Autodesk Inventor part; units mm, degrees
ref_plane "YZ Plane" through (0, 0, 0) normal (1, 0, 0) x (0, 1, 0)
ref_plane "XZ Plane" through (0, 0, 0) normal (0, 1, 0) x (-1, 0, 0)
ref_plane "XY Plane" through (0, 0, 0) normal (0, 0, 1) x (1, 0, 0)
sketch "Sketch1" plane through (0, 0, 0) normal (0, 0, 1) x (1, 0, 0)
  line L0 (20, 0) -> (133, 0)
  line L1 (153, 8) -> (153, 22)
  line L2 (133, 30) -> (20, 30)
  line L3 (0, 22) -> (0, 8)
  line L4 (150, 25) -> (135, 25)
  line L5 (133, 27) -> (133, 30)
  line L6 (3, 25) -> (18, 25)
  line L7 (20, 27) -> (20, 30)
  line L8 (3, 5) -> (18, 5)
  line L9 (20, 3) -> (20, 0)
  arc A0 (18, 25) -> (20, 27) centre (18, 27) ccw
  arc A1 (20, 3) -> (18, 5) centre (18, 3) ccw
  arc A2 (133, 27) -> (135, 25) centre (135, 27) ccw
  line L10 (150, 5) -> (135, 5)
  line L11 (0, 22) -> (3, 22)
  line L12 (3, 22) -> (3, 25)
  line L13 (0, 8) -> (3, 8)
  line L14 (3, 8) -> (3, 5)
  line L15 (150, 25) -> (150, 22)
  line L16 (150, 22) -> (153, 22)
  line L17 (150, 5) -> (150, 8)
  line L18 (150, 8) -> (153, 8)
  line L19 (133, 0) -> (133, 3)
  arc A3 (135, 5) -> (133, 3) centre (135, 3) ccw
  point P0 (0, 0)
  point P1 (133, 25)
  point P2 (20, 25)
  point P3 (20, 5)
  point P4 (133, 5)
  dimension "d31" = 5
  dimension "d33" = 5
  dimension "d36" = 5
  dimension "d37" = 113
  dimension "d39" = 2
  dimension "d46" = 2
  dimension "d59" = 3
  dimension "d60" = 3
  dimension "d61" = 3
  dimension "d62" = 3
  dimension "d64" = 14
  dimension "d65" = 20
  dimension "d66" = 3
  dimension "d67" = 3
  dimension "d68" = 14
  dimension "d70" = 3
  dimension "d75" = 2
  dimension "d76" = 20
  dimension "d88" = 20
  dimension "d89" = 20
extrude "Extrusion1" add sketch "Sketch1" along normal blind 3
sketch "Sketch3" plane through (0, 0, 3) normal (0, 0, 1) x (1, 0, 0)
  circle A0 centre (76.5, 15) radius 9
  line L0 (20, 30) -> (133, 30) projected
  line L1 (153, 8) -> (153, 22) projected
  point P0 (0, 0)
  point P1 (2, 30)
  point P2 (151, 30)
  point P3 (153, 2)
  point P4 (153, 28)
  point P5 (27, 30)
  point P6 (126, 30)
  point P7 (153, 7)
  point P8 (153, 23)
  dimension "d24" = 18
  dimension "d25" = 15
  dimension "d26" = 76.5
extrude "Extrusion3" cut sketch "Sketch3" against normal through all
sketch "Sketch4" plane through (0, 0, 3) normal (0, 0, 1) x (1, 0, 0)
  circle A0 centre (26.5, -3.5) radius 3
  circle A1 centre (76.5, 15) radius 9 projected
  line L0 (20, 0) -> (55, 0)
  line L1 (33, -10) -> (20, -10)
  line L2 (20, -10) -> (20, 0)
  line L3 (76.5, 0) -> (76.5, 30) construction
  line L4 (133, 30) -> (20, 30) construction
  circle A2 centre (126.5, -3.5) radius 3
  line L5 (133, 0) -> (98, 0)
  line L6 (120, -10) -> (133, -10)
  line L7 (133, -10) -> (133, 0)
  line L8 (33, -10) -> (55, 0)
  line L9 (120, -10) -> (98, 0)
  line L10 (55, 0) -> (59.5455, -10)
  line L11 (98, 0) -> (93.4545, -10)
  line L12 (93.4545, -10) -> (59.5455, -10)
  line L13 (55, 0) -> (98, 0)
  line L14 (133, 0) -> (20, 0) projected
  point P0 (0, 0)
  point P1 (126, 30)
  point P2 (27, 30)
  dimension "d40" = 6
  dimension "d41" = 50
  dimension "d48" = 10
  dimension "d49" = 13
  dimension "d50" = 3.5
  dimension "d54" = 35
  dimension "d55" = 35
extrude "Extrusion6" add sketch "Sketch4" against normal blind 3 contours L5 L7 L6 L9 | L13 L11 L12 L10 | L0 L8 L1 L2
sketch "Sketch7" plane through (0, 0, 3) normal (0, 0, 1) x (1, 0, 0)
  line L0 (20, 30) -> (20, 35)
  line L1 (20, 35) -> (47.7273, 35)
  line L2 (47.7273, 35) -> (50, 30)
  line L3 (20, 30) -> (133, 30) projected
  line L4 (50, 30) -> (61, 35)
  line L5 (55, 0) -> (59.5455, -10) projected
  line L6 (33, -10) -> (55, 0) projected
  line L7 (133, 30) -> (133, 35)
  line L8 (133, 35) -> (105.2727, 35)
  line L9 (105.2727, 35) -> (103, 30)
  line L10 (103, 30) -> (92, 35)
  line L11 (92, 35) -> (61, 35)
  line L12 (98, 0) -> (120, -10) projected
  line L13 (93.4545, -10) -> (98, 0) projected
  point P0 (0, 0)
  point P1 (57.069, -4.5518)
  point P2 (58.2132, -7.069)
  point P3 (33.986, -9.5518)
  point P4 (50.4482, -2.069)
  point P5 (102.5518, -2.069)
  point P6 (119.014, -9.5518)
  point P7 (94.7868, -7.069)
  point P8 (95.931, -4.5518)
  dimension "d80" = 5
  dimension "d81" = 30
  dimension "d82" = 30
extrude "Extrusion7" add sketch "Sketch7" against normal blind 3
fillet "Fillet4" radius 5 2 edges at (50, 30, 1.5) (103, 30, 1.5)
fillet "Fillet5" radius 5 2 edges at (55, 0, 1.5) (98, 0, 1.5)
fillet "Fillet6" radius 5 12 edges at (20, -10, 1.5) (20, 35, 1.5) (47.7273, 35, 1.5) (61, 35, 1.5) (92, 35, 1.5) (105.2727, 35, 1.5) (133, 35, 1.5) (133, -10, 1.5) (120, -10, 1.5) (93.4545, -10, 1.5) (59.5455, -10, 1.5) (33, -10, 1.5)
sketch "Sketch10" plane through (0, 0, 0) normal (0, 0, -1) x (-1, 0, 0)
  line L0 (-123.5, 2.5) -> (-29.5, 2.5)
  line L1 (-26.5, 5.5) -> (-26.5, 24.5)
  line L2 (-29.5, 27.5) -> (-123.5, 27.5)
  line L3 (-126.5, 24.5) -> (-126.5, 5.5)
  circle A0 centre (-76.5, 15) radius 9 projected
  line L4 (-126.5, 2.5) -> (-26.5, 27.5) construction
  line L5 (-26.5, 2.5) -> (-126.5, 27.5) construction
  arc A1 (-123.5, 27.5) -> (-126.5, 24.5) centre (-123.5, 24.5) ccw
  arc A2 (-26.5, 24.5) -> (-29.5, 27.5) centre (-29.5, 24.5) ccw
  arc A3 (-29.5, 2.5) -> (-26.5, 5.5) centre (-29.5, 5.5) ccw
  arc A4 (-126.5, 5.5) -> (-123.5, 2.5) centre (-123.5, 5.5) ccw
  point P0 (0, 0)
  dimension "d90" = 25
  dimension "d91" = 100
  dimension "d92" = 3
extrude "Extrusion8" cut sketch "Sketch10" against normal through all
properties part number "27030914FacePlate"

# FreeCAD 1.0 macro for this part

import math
import FreeCAD as App
import Part
import Sketcher


def edges_at(feature, points):
    """Names of the edges that pass closest to the given points."""
    edges = feature.Shape.Edges
    near = lambda p: min(range(len(edges)), key=lambda i: edges[i].distToShape(Part.Vertex(*p))[0])
    return sorted({f"Edge{near(p) + 1}" for p in points})

doc = App.newDocument("Part")
body = doc.addObject("PartDesign::Body", "Body")

sketch1 = body.newObject("Sketcher::SketchObject", "Sketch")
sketch1.AttachmentSupport = (doc.getObject("XY_Plane"), [""])
sketch1.MapMode = "FlatFace"
sketch1.addGeometry([
    Part.LineSegment(App.Vector(20, 3, 0), App.Vector(20, 0, 0)),
    Part.LineSegment(App.Vector(20, 0, 0), App.Vector(133, 0, 0)),
    Part.LineSegment(App.Vector(133, 0, 0), App.Vector(133, 3, 0)),
    Part.ArcOfCircle(Part.Circle(App.Vector(135, 3, 0), App.Vector(0, 0, 1), 2), math.radians(90), math.radians(180)),
    Part.LineSegment(App.Vector(135, 5, 0), App.Vector(150, 5, 0)),
    Part.LineSegment(App.Vector(150, 5, 0), App.Vector(150, 8, 0)),
    Part.LineSegment(App.Vector(150, 8, 0), App.Vector(153, 8, 0)),
    Part.LineSegment(App.Vector(153, 8, 0), App.Vector(153, 22, 0)),
    Part.LineSegment(App.Vector(153, 22, 0), App.Vector(150, 22, 0)),
    Part.LineSegment(App.Vector(150, 22, 0), App.Vector(150, 25, 0)),
    Part.LineSegment(App.Vector(150, 25, 0), App.Vector(135, 25, 0)),
    Part.ArcOfCircle(Part.Circle(App.Vector(135, 27, 0), App.Vector(0, 0, 1), 2), math.radians(180), math.radians(270)),
    Part.LineSegment(App.Vector(133, 27, 0), App.Vector(133, 30, 0)),
    Part.LineSegment(App.Vector(133, 30, 0), App.Vector(20, 30, 0)),
    Part.LineSegment(App.Vector(20, 30, 0), App.Vector(20, 27, 0)),
    Part.ArcOfCircle(Part.Circle(App.Vector(18, 27, 0), App.Vector(0, 0, 1), 2), math.radians(-90), math.radians(0)),
    Part.LineSegment(App.Vector(18, 25, 0), App.Vector(3, 25, 0)),
    Part.LineSegment(App.Vector(3, 25, 0), App.Vector(3, 22, 0)),
    Part.LineSegment(App.Vector(3, 22, 0), App.Vector(0, 22, 0)),
    Part.LineSegment(App.Vector(0, 22, 0), App.Vector(0, 8, 0)),
    Part.LineSegment(App.Vector(0, 8, 0), App.Vector(3, 8, 0)),
    Part.LineSegment(App.Vector(3, 8, 0), App.Vector(3, 5, 0)),
    Part.LineSegment(App.Vector(3, 5, 0), App.Vector(18, 5, 0)),
    Part.ArcOfCircle(Part.Circle(App.Vector(18, 3, 0), App.Vector(0, 0, 1), 2), math.radians(0), math.radians(90)),
], False)
sketch1.addConstraint([
    Sketcher.Constraint("Coincident", 0, 2, 1, 1),
    Sketcher.Constraint("Coincident", 1, 2, 2, 1),
    Sketcher.Constraint("Tangent", 2, 2, 3, 2),
    Sketcher.Constraint("Tangent", 3, 1, 4, 1),
    Sketcher.Constraint("Coincident", 4, 2, 5, 1),
    Sketcher.Constraint("Coincident", 5, 2, 6, 1),
    Sketcher.Constraint("Coincident", 6, 2, 7, 1),
    Sketcher.Constraint("Coincident", 7, 2, 8, 1),
    Sketcher.Constraint("Coincident", 8, 2, 9, 1),
    Sketcher.Constraint("Coincident", 9, 2, 10, 1),
    Sketcher.Constraint("Tangent", 10, 2, 11, 2),
    Sketcher.Constraint("Tangent", 11, 1, 12, 1),
    Sketcher.Constraint("Coincident", 12, 2, 13, 1),
    Sketcher.Constraint("Coincident", 13, 2, 14, 1),
    Sketcher.Constraint("Tangent", 14, 2, 15, 2),
    Sketcher.Constraint("Tangent", 15, 1, 16, 1),
    Sketcher.Constraint("Coincident", 16, 2, 17, 1),
    Sketcher.Constraint("Coincident", 17, 2, 18, 1),
    Sketcher.Constraint("Coincident", 18, 2, 19, 1),
    Sketcher.Constraint("Coincident", 19, 2, 20, 1),
    Sketcher.Constraint("Coincident", 20, 2, 21, 1),
    Sketcher.Constraint("Coincident", 21, 2, 22, 1),
    Sketcher.Constraint("Tangent", 22, 2, 23, 2),
    Sketcher.Constraint("Tangent", 23, 1, 0, 1),
    Sketcher.Constraint("Vertical", 0),
    Sketcher.Constraint("Horizontal", 1),
    Sketcher.Constraint("Vertical", 2),
    Sketcher.Constraint("Horizontal", 4),
    Sketcher.Constraint("Vertical", 5),
    Sketcher.Constraint("Horizontal", 6),
    Sketcher.Constraint("Vertical", 7),
    Sketcher.Constraint("Horizontal", 8),
    Sketcher.Constraint("Vertical", 9),
    Sketcher.Constraint("Horizontal", 10),
    Sketcher.Constraint("Vertical", 12),
    Sketcher.Constraint("Horizontal", 13),
    Sketcher.Constraint("Vertical", 14),
    Sketcher.Constraint("Horizontal", 16),
    Sketcher.Constraint("Vertical", 17),
    Sketcher.Constraint("Horizontal", 18),
    Sketcher.Constraint("Vertical", 19),
    Sketcher.Constraint("Horizontal", 20),
    Sketcher.Constraint("Vertical", 21),
    Sketcher.Constraint("Horizontal", 22),
    Sketcher.Constraint("Equal", 3, 11),
    Sketcher.Constraint("Equal", 11, 15),
    Sketcher.Constraint("Equal", 15, 23),
    Sketcher.Constraint("PointOnObject", 0, 2, -1),
    Sketcher.Constraint("PointOnObject", 18, 2, -2),
    Sketcher.Constraint("Horizontal", 11, 3, 15, 3),
    Sketcher.Constraint("Horizontal", 3, 3, 23, 3),
    Sketcher.Constraint("Horizontal", 8, 2, 17, 2),
    Sketcher.Constraint("Horizontal", 6, 2, 19, 2),
    Sketcher.Constraint("Vertical", 3, 3, 11, 3),
    Sketcher.Constraint("Vertical", 15, 3, 23, 3),
    Sketcher.Constraint("Vertical", 5, 2, 8, 2),
    Sketcher.Constraint("Vertical", 17, 2, 20, 2),
    Sketcher.Constraint("Equal", 10, 16),
    Sketcher.Constraint("Equal", 8, 18),
    Sketcher.Constraint("Equal", 20, 0),
    Sketcher.Constraint("Equal", 2, 5),
    Sketcher.Constraint("Equal", 5, 9),
    Sketcher.Constraint("Equal", 9, 12),
    Sketcher.Constraint("Radius", 3, 2.0),
    Sketcher.Constraint("DistanceX", 1, 1, 1, 2, 113.0),
    Sketcher.Constraint("DistanceX", 6, 1, 6, 2, 3.0),
    Sketcher.Constraint("DistanceY", 7, 1, 7, 2, 14.0),
    Sketcher.Constraint("DistanceX", -1, 1, 0, 2, 20.0),
])
pad1 = body.newObject("PartDesign::Pad", "Pad")
pad1.Profile = sketch1
pad1.Length = 3

sketch2 = body.newObject("Sketcher::SketchObject", "Sketch001")
sketch2.AttachmentSupport = (doc.getObject("XY_Plane"), [""])
sketch2.MapMode = "FlatFace"
sketch2.AttachmentOffset = App.Placement(App.Vector(0, 0, 3), App.Rotation())
sketch2.addGeometry(Part.Circle(App.Vector(76, 15, 0), App.Vector(0, 0, 1), 9), False)
sketch2.addConstraint([
    Sketcher.Constraint("Diameter", 0, 18.0),
    Sketcher.Constraint("DistanceY", -1, 1, 0, 3, 15.0),
    Sketcher.Constraint("DistanceX", -1, 1, 0, 3, 76.5),
])
pocket1 = body.newObject("PartDesign::Pocket", "Pocket")
pocket1.Profile = sketch2
pocket1.Type = "ThroughAll"

sketch3 = body.newObject("Sketcher::SketchObject", "Sketch002")
sketch3.AttachmentSupport = (doc.getObject("XY_Plane"), [""])
sketch3.MapMode = "FlatFace"
sketch3.AttachmentOffset = App.Placement(App.Vector(0, 0, 3), App.Rotation())
sketch3.addGeometry([
    Part.LineSegment(App.Vector(133, 0, 0), App.Vector(98, 0, 0)),
    Part.LineSegment(App.Vector(98, 0, 0), App.Vector(120, -10, 0)),
    Part.LineSegment(App.Vector(120, -10, 0), App.Vector(133, -10, 0)),
    Part.LineSegment(App.Vector(133, -10, 0), App.Vector(133, 0, 0)),
    Part.Circle(App.Vector(126.5, -3.5, 0), App.Vector(0, 0, 1), 3),
    Part.LineSegment(App.Vector(98, 0, 0), App.Vector(55, 0, 0)),
    Part.LineSegment(App.Vector(55, 0, 0), App.Vector(59.5, -10, 0)),
    Part.LineSegment(App.Vector(59.5, -10, 0), App.Vector(93.5, -10, 0)),
    Part.LineSegment(App.Vector(93.5, -10, 0), App.Vector(98, 0, 0)),
    Part.LineSegment(App.Vector(55, 0, 0), App.Vector(20, 0, 0)),
    Part.LineSegment(App.Vector(20, 0, 0), App.Vector(20, -10, 0)),
    Part.LineSegment(App.Vector(20, -10, 0), App.Vector(33, -10, 0)),
    Part.LineSegment(App.Vector(33, -10, 0), App.Vector(55, 0, 0)),
    Part.Circle(App.Vector(26.5, -3.5, 0), App.Vector(0, 0, 1), 3),
], False)
sketch3.addConstraint([
    Sketcher.Constraint("Coincident", 0, 2, 1, 1),
    Sketcher.Constraint("Coincident", 1, 2, 2, 1),
    Sketcher.Constraint("Coincident", 2, 2, 3, 1),
    Sketcher.Constraint("Coincident", 3, 2, 0, 1),
    Sketcher.Constraint("Coincident", 5, 2, 6, 1),
    Sketcher.Constraint("Coincident", 6, 2, 7, 1),
    Sketcher.Constraint("Coincident", 7, 2, 8, 1),
    Sketcher.Constraint("Coincident", 8, 2, 5, 1),
    Sketcher.Constraint("Coincident", 9, 2, 10, 1),
    Sketcher.Constraint("Coincident", 10, 2, 11, 1),
    Sketcher.Constraint("Coincident", 11, 2, 12, 1),
    Sketcher.Constraint("Coincident", 12, 2, 9, 1),
    Sketcher.Constraint("Horizontal", 0),
    Sketcher.Constraint("Horizontal", 2),
    Sketcher.Constraint("Vertical", 3),
    Sketcher.Constraint("Horizontal", 5),
    Sketcher.Constraint("Horizontal", 7),
    Sketcher.Constraint("Horizontal", 9),
    Sketcher.Constraint("Vertical", 10),
    Sketcher.Constraint("Horizontal", 11),
    Sketcher.Constraint("Coincident", 8, 2, 0, 2),
    Sketcher.Constraint("Coincident", 12, 2, 5, 2),
    Sketcher.Constraint("Equal", 4, 13),
    Sketcher.Constraint("PointOnObject", 0, 2, -1),
    Sketcher.Constraint("Perpendicular", 1, 8),
    Sketcher.Constraint("Perpendicular", 6, 12),
    Sketcher.Constraint("Horizontal", 4, 3, 13, 3),
    Sketcher.Constraint("Horizontal", 2, 2, 6, 2),
    Sketcher.Constraint("Horizontal", 7, 2, 10, 2),
    Sketcher.Constraint("Equal", 0, 9),
    Sketcher.Constraint("Equal", 2, 11),
    Sketcher.Constraint("Diameter", 4, 6.0),
    Sketcher.Constraint("DistanceX", 0, 2, 0, 1, 35.0),
    Sketcher.Constraint("DistanceX", 2, 1, 2, 2, 13.0),
    Sketcher.Constraint("DistanceY", 3, 1, 3, 2, 10.0),
    Sketcher.Constraint("DistanceY", 4, 3, -1, 1, 3.5),
    Sketcher.Constraint("DistanceX", 5, 2, 5, 1, 43.0),
    Sketcher.Constraint("DistanceX", -1, 1, 0, 2, 98.0),
    Sketcher.Constraint("DistanceX", 13, 3, 4, 3, 100.0),
    Sketcher.Constraint("DistanceX", -1, 1, 4, 3, 126.5),
])
pad2 = body.newObject("PartDesign::Pad", "Pad001")
pad2.Profile = sketch3
pad2.Length = 3
pad2.Reversed = True

sketch4 = body.newObject("Sketcher::SketchObject", "Sketch003")
sketch4.AttachmentSupport = (doc.getObject("XY_Plane"), [""])
sketch4.MapMode = "FlatFace"
sketch4.AttachmentOffset = App.Placement(App.Vector(0, 0, 3), App.Rotation())
sketch4.addGeometry([
    Part.LineSegment(App.Vector(105, 35, 0), App.Vector(103, 30, 0)),
    Part.LineSegment(App.Vector(103, 30, 0), App.Vector(133, 30, 0)),
    Part.LineSegment(App.Vector(133, 30, 0), App.Vector(133, 35, 0)),
    Part.LineSegment(App.Vector(133, 35, 0), App.Vector(105, 35, 0)),
    Part.LineSegment(App.Vector(61, 35, 0), App.Vector(50, 30, 0)),
    Part.LineSegment(App.Vector(50, 30, 0), App.Vector(103, 30, 0)),
    Part.LineSegment(App.Vector(103, 30, 0), App.Vector(92, 35, 0)),
    Part.LineSegment(App.Vector(92, 35, 0), App.Vector(61, 35, 0)),
    Part.LineSegment(App.Vector(20, 35, 0), App.Vector(20, 30, 0)),
    Part.LineSegment(App.Vector(20, 30, 0), App.Vector(50, 30, 0)),
    Part.LineSegment(App.Vector(50, 30, 0), App.Vector(48, 35, 0)),
    Part.LineSegment(App.Vector(48, 35, 0), App.Vector(20, 35, 0)),
], False)
sketch4.addConstraint([
    Sketcher.Constraint("Coincident", 0, 2, 1, 1),
    Sketcher.Constraint("Coincident", 1, 2, 2, 1),
    Sketcher.Constraint("Coincident", 2, 2, 3, 1),
    Sketcher.Constraint("Coincident", 3, 2, 0, 1),
    Sketcher.Constraint("Coincident", 4, 2, 5, 1),
    Sketcher.Constraint("Coincident", 5, 2, 6, 1),
    Sketcher.Constraint("Coincident", 6, 2, 7, 1),
    Sketcher.Constraint("Coincident", 7, 2, 4, 1),
    Sketcher.Constraint("Coincident", 8, 2, 9, 1),
    Sketcher.Constraint("Coincident", 9, 2, 10, 1),
    Sketcher.Constraint("Coincident", 10, 2, 11, 1),
    Sketcher.Constraint("Coincident", 11, 2, 8, 1),
    Sketcher.Constraint("Horizontal", 1),
    Sketcher.Constraint("Vertical", 2),
    Sketcher.Constraint("Horizontal", 3),
    Sketcher.Constraint("Horizontal", 5),
    Sketcher.Constraint("Horizontal", 7),
    Sketcher.Constraint("Vertical", 8),
    Sketcher.Constraint("Horizontal", 9),
    Sketcher.Constraint("Horizontal", 11),
    Sketcher.Constraint("Coincident", 5, 2, 0, 2),
    Sketcher.Constraint("Coincident", 9, 2, 4, 2),
    Sketcher.Constraint("Perpendicular", 0, 6),
    Sketcher.Constraint("Perpendicular", 4, 10),
    Sketcher.Constraint("Horizontal", 3, 2, 6, 2),
    Sketcher.Constraint("Horizontal", 7, 2, 10, 2),
    Sketcher.Constraint("Equal", 1, 9),
    Sketcher.Constraint("Equal", 3, 11),
    Sketcher.Constraint("DistanceX", 1, 1, 1, 2, 30.0),
    Sketcher.Constraint("DistanceY", 2, 1, 2, 2, 5.0),
    Sketcher.Constraint("DistanceY", -1, 1, 0, 2, 30.0),
    Sketcher.Constraint("DistanceX", 5, 1, 5, 2, 53.0),
    Sketcher.Constraint("DistanceX", 7, 2, 7, 1, 31.0),
    Sketcher.Constraint("DistanceX", -1, 1, 0, 2, 103.0),
])
pad3 = body.newObject("PartDesign::Pad", "Pad002")
pad3.Profile = sketch4
pad3.Length = 3
pad3.Reversed = True
doc.recompute()

fillet = body.newObject("PartDesign::Fillet", "Fillet")
fillet.Base = (pad3, edges_at(pad3, [(50, 30, 1.5), (103, 30, 1.5)]))
fillet.Radius = 5
doc.recompute()

fillet2 = body.newObject("PartDesign::Fillet", "Fillet001")
fillet2.Base = (fillet, edges_at(fillet, [(55, 0, 1.5), (98, 0, 1.5)]))
fillet2.Radius = 5
doc.recompute()

fillet3 = body.newObject("PartDesign::Fillet", "Fillet002")
fillet3.Base = (fillet2, edges_at(fillet2, [
    (20, -10, 1.5),
    (20, 35, 1.5),
    (47.727, 35, 1.5),
    (61, 35, 1.5),
    (92, 35, 1.5),
    (105.273, 35, 1.5),
    (133, 35, 1.5),
    (133, -10, 1.5),
    (120, -10, 1.5),
    (93.454, -10, 1.5),
    (59.545, -10, 1.5),
    (33, -10, 1.5),
]))
fillet3.Radius = 5

sketch5 = body.newObject("Sketcher::SketchObject", "Sketch004")
sketch5.AttachmentSupport = (doc.getObject("XY_Plane"), [""])
sketch5.MapMode = "FlatFace"
sketch5.addGeometry([
    Part.ArcOfCircle(Part.Circle(App.Vector(123.5, 5.5, 0), App.Vector(0, 0, 1), 3), math.radians(-90), math.radians(0)),
    Part.LineSegment(App.Vector(123.5, 2.5, 0), App.Vector(29.5, 2.5, 0)),
    Part.ArcOfCircle(Part.Circle(App.Vector(29.5, 5.5, 0), App.Vector(0, 0, 1), 3), math.radians(180), math.radians(270)),
    Part.LineSegment(App.Vector(26.5, 5.5, 0), App.Vector(26.5, 24.5, 0)),
    Part.ArcOfCircle(Part.Circle(App.Vector(29.5, 24.5, 0), App.Vector(0, 0, 1), 3), math.radians(90), math.radians(180)),
    Part.LineSegment(App.Vector(29.5, 27.5, 0), App.Vector(123.5, 27.5, 0)),
    Part.ArcOfCircle(Part.Circle(App.Vector(123.5, 24.5, 0), App.Vector(0, 0, 1), 3), math.radians(0), math.radians(90)),
    Part.LineSegment(App.Vector(126.5, 24.5, 0), App.Vector(126.5, 5.5, 0)),
    Part.Circle(App.Vector(76.5, 15, 0), App.Vector(0, 0, 1), 9),
], False)
sketch5.addConstraint([
    Sketcher.Constraint("Tangent", 0, 1, 1, 1),
    Sketcher.Constraint("Tangent", 1, 2, 2, 2),
    Sketcher.Constraint("Tangent", 2, 1, 3, 1),
    Sketcher.Constraint("Tangent", 3, 2, 4, 2),
    Sketcher.Constraint("Tangent", 4, 1, 5, 1),
    Sketcher.Constraint("Tangent", 5, 2, 6, 2),
    Sketcher.Constraint("Tangent", 6, 1, 7, 1),
    Sketcher.Constraint("Tangent", 7, 2, 0, 2),
    Sketcher.Constraint("Horizontal", 1),
    Sketcher.Constraint("Vertical", 3),
    Sketcher.Constraint("Horizontal", 5),
    Sketcher.Constraint("Vertical", 7),
    Sketcher.Constraint("Equal", 0, 2),
    Sketcher.Constraint("Equal", 2, 4),
    Sketcher.Constraint("Equal", 4, 6),
    Sketcher.Constraint("Radius", 0, 3.0),
    Sketcher.Constraint("Diameter", 8, 18.0),
    Sketcher.Constraint("DistanceY", 1, 2, 4, 1, 25.0),
    Sketcher.Constraint("DistanceX", 1, 2, 1, 1, 94.0),
    Sketcher.Constraint("DistanceY", -1, 1, 8, 3, 15.0),
    Sketcher.Constraint("DistanceX", 8, 3, 0, 3, 47.0),
    Sketcher.Constraint("DistanceX", -1, 1, 0, 3, 123.5),
    Sketcher.Constraint("DistanceY", -1, 1, 0, 3, 5.5),
])
pocket2 = body.newObject("PartDesign::Pocket", "Pocket001")
pocket2.Profile = sketch5
pocket2.Type = "ThroughAll"
pocket2.Reversed = True

doc.recompute()
